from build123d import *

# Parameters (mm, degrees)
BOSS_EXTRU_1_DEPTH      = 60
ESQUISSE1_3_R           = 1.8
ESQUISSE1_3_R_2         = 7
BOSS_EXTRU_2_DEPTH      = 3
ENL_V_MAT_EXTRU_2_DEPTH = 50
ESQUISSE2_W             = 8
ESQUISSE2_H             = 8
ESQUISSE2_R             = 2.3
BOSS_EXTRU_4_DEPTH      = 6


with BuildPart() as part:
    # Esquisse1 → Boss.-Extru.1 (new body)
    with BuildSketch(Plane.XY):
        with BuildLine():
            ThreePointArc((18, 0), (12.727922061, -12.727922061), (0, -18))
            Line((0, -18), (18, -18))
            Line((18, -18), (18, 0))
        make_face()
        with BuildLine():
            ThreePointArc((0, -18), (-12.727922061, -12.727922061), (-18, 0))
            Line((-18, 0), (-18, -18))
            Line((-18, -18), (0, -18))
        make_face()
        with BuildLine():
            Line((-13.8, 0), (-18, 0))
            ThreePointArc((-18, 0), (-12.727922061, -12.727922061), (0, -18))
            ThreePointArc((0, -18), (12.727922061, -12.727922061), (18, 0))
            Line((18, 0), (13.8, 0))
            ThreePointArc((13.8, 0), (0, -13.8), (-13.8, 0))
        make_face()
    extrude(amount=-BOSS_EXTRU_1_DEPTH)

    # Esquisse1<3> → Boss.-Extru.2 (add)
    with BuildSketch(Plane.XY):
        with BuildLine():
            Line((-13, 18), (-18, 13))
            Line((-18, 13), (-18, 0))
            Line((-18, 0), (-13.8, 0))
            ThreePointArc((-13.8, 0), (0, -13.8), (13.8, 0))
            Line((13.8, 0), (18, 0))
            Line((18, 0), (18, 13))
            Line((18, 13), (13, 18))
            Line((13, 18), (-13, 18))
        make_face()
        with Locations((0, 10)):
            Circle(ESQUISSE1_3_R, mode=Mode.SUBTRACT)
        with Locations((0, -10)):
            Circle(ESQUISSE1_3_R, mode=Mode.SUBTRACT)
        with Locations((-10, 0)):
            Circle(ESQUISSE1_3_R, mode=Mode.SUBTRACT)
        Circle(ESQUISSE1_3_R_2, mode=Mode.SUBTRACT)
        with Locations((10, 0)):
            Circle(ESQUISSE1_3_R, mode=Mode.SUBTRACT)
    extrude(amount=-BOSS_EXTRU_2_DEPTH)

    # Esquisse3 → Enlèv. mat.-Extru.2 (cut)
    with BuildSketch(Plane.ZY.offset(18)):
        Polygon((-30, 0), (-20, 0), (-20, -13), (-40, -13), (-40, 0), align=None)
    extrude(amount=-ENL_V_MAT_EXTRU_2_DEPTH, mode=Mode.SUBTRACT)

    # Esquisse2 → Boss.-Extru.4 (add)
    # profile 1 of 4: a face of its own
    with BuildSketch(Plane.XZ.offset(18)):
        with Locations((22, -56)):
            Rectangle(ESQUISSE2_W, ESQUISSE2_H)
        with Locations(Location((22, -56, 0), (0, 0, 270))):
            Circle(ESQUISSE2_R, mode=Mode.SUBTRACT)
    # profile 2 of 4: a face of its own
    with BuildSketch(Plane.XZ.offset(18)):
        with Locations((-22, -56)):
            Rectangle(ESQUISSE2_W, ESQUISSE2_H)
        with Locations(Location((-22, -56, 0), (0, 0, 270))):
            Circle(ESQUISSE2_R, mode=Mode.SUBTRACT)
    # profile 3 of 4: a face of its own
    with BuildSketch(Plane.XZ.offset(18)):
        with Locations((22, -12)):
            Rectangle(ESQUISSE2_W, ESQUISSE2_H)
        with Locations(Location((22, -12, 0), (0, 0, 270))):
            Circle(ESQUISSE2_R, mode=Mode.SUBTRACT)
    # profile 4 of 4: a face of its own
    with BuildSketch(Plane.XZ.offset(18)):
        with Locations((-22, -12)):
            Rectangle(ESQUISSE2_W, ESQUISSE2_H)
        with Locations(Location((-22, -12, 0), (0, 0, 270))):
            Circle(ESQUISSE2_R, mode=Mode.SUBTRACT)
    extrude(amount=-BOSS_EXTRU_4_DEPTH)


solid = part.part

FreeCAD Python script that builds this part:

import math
import FreeCAD as App
import Part
import Sketcher
Q = App.Units.Quantity

doc = App.newDocument("Part")
body = doc.addObject("PartDesign::Body", "Body")

# Sketch on XY plane
sketch1 = body.newObject("Sketcher::SketchObject", "Sketch")
sketch1.AttachmentSupport = (doc.getObject("XY_Plane"), [""])
sketch1.MapMode = "FlatFace"
sketch1.addGeometry(Part.LineSegment(App.Vector(18, -18, 0), App.Vector(18, 0, 0)), False)
sketch1.addGeometry(Part.LineSegment(App.Vector(18, 0, 0), App.Vector(13.8, 0, 0)), False)
sketch1.addGeometry(Part.ArcOfCircle(Part.Circle(App.Vector(0, 0, 0), App.Vector(0, 0, 1), 13.8), math.radians(180), math.radians(360)), False)
sketch1.addGeometry(Part.LineSegment(App.Vector(-13.8, 0, 0), App.Vector(-18, 0, 0)), False)
sketch1.addGeometry(Part.LineSegment(App.Vector(-18, 0, 0), App.Vector(-18, -18, 0)), False)
sketch1.addGeometry(Part.LineSegment(App.Vector(-18, -18, 0), App.Vector(18, -18, 0)), False)
sketch1.addConstraint(Sketcher.Constraint("Coincident", 0, 2, 1, 1))
sketch1.addConstraint(Sketcher.Constraint("Coincident", 1, 2, 2, 2))
sketch1.addConstraint(Sketcher.Constraint("Coincident", 2, 1, 3, 1))
sketch1.addConstraint(Sketcher.Constraint("Coincident", 3, 2, 4, 1))
sketch1.addConstraint(Sketcher.Constraint("Coincident", 4, 2, 5, 1))
sketch1.addConstraint(Sketcher.Constraint("Coincident", 5, 2, 0, 1))
sketch1.addConstraint(Sketcher.Constraint("Vertical", 0))
sketch1.addConstraint(Sketcher.Constraint("Horizontal", 1))
sketch1.addConstraint(Sketcher.Constraint("Horizontal", 3))
sketch1.addConstraint(Sketcher.Constraint("Vertical", 4))
sketch1.addConstraint(Sketcher.Constraint("Horizontal", 5))
sketch1.addConstraint(Sketcher.Constraint("Coincident", 2, 3, -1, 1))
sketch1.addConstraint(Sketcher.Constraint("Symmetric", 0, 2, 3, 2, -1, 1))
sketch1.addConstraint(Sketcher.Constraint("PointOnObject", 0, 2, -1))
sketch1.addConstraint(Sketcher.Constraint("Radius", 2, Q("13.8 mm")))
sketch1.addConstraint(Sketcher.Constraint("DistanceX", 5, 1, 5, 2, Q("36 mm")))
sketch1.addConstraint(Sketcher.Constraint("DistanceY", 0, 1, 0, 2, Q("18 mm")))
pad1 = body.newObject("PartDesign::Pad", "Pad")
pad1.Profile = sketch1
pad1.Length = 60
pad1.Reversed = True

# Sketch on XY plane
sketch2 = body.newObject("Sketcher::SketchObject", "Sketch001")
sketch2.AttachmentSupport = (doc.getObject("XY_Plane"), [""])
sketch2.MapMode = "FlatFace"
sketch2.addGeometry(Part.LineSegment(App.Vector(-13, 18, 0), App.Vector(-18, 13, 0)), False)
sketch2.addGeometry(Part.LineSegment(App.Vector(-18, 13, 0), App.Vector(-18, 0, 0)), False)
sketch2.addGeometry(Part.LineSegment(App.Vector(-18, 0, 0), App.Vector(-13.8, 0, 0)), False)
sketch2.addGeometry(Part.ArcOfCircle(Part.Circle(App.Vector(0, 0, 0), App.Vector(0, 0, 1), 13.8), math.radians(180), math.radians(360)), False)
sketch2.addGeometry(Part.LineSegment(App.Vector(13.8, 0, 0), App.Vector(18, 0, 0)), False)
sketch2.addGeometry(Part.LineSegment(App.Vector(18, 0, 0), App.Vector(18, 13, 0)), False)
sketch2.addGeometry(Part.LineSegment(App.Vector(18, 13, 0), App.Vector(13, 18, 0)), False)
sketch2.addGeometry(Part.LineSegment(App.Vector(13, 18, 0), App.Vector(-13, 18, 0)), False)
sketch2.addGeometry(Part.Circle(App.Vector(0, -10, 0), App.Vector(0, 0, 1), 1.8), False)
sketch2.addGeometry(Part.Circle(App.Vector(-10, 0, 0), App.Vector(0, 0, 1), 1.8), False)
sketch2.addGeometry(Part.Circle(App.Vector(0, 0, 0), App.Vector(0, 0, 1), 7), False)
sketch2.addGeometry(Part.Circle(App.Vector(10, 0, 0), App.Vector(0, 0, 1), 1.8), False)
sketch2.addGeometry(Part.Circle(App.Vector(0, 10, 0), App.Vector(0, 0, 1), 1.8), False)
sketch2.addConstraint(Sketcher.Constraint("Coincident", 0, 2, 1, 1))
sketch2.addConstraint(Sketcher.Constraint("Coincident", 1, 2, 2, 1))
sketch2.addConstraint(Sketcher.Constraint("Coincident", 2, 2, 3, 1))
sketch2.addConstraint(Sketcher.Constraint("Coincident", 3, 2, 4, 1))
sketch2.addConstraint(Sketcher.Constraint("Coincident", 4, 2, 5, 1))
sketch2.addConstraint(Sketcher.Constraint("Coincident", 5, 2, 6, 1))
sketch2.addConstraint(Sketcher.Constraint("Coincident", 6, 2, 7, 1))
sketch2.addConstraint(Sketcher.Constraint("Coincident", 7, 2, 0, 1))
sketch2.addConstraint(Sketcher.Constraint("Vertical", 1))
sketch2.addConstraint(Sketcher.Constraint("Horizontal", 2))
sketch2.addConstraint(Sketcher.Constraint("Horizontal", 4))
sketch2.addConstraint(Sketcher.Constraint("Vertical", 5))
sketch2.addConstraint(Sketcher.Constraint("Horizontal", 7))
sketch2.addConstraint(Sketcher.Constraint("Coincident", 3, 3, -1, 1))
sketch2.addConstraint(Sketcher.Constraint("Coincident", 10, 3, -1, 1))
sketch2.addConstraint(Sketcher.Constraint("Equal", 8, 9))
sketch2.addConstraint(Sketcher.Constraint("Equal", 9, 11))
sketch2.addConstraint(Sketcher.Constraint("Equal", 11, 12))
sketch2.addConstraint(Sketcher.Constraint("Symmetric", 9, 3, 11, 3, -1, 1))
sketch2.addConstraint(Sketcher.Constraint("Symmetric", 8, 3, 12, 3, -1, 1))
sketch2.addConstraint(Sketcher.Constraint("Symmetric", 1, 2, 4, 2, -1, 1))
sketch2.addConstraint(Sketcher.Constraint("PointOnObject", 8, 3, -2))
sketch2.addConstraint(Sketcher.Constraint("PointOnObject", 9, 3, -1))
sketch2.addConstraint(Sketcher.Constraint("PointOnObject", 1, 2, -1))
sketch2.addConstraint(Sketcher.Constraint("Perpendicular", 0, 6))
sketch2.addConstraint(Sketcher.Constraint("Horizontal", 0, 2, 5, 2))
sketch2.addConstraint(Sketcher.Constraint("Equal", 0, 6))
sketch2.addConstraint(Sketcher.Constraint("Diameter", 10, Q("14 mm")))
sketch2.addConstraint(Sketcher.Constraint("Diameter", 8, Q("3.6 mm")))
sketch2.addConstraint(Sketcher.Constraint("Radius", 3, Q("13.8 mm")))
sketch2.addConstraint(Sketcher.Constraint("DistanceX", 7, 2, 7, 1, Q("26 mm")))
sketch2.addConstraint(Sketcher.Constraint("DistanceY", 1, 2, 1, 1, Q("13 mm")))
sketch2.addConstraint(Sketcher.Constraint("DistanceX", 2, 1, 2, 2, Q("4.2 mm")))
sketch2.addConstraint(Sketcher.Constraint("DistanceY", 8, 3, -1, 1, Q("10 mm")))
sketch2.addConstraint(Sketcher.Constraint("DistanceX", 9, 3, -1, 1, Q("10 mm")))
pad2 = body.newObject("PartDesign::Pad", "Pad001")
pad2.Profile = sketch2
pad2.Length = 3
pad2.Reversed = True

# Sketch on YZ plane
sketch3 = body.newObject("Sketcher::SketchObject", "Sketch002")
sketch3.AttachmentSupport = (doc.getObject("YZ_Plane"), [""])
sketch3.MapMode = "FlatFace"
sketch3.AttachmentOffset = App.Placement(App.Vector(0, 0, -18), App.Rotation())
sketch3.addGeometry(Part.LineSegment(App.Vector(0, -20, 0), App.Vector(0, -40, 0)), False)
sketch3.addGeometry(Part.LineSegment(App.Vector(0, -40, 0), App.Vector(-13, -40, 0)), False)
sketch3.addGeometry(Part.LineSegment(App.Vector(-13, -40, 0), App.Vector(-13, -20, 0)), False)
sketch3.addGeometry(Part.LineSegment(App.Vector(-13, -20, 0), App.Vector(0, -20, 0)), False)
sketch3.addConstraint(Sketcher.Constraint("Coincident", 0, 2, 1, 1))
sketch3.addConstraint(Sketcher.Constraint("Coincident", 1, 2, 2, 1))
sketch3.addConstraint(Sketcher.Constraint("Coincident", 2, 2, 3, 1))
sketch3.addConstraint(Sketcher.Constraint("Coincident", 3, 2, 0, 1))
sketch3.addConstraint(Sketcher.Constraint("Vertical", 0))
sketch3.addConstraint(Sketcher.Constraint("Horizontal", 1))
sketch3.addConstraint(Sketcher.Constraint("Vertical", 2))
sketch3.addConstraint(Sketcher.Constraint("Horizontal", 3))
sketch3.addConstraint(Sketcher.Constraint("PointOnObject", 0, 2, -2))
sketch3.addConstraint(Sketcher.Constraint("DistanceX", 1, 2, 1, 1, Q("13 mm")))
sketch3.addConstraint(Sketcher.Constraint("DistanceY", 0, 2, 0, 1, Q("20 mm")))
sketch3.addConstraint(Sketcher.Constraint("DistanceY", 0, 2, -1, 1, Q("40 mm")))
pocket1 = body.newObject("PartDesign::Pocket", "Pocket")
pocket1.Profile = sketch3
pocket1.Length = 50
pocket1.Reversed = True

# Sketch on XZ plane
sketch4 = body.newObject("Sketcher::SketchObject", "Sketch003")
sketch4.AttachmentSupport = (doc.getObject("XZ_Plane"), [""])
sketch4.MapMode = "FlatFace"
sketch4.AttachmentOffset = App.Placement(App.Vector(0, 0, 18), App.Rotation())
sketch4.addGeometry(Part.LineSegment(App.Vector(18, -52, 0), App.Vector(18, -60, 0)), False)
sketch4.addGeometry(Part.LineSegment(App.Vector(18, -60, 0), App.Vector(26, -60, 0)), False)
sketch4.addGeometry(Part.LineSegment(App.Vector(26, -60, 0), App.Vector(26, -52, 0)), False)
sketch4.addGeometry(Part.LineSegment(App.Vector(26, -52, 0), App.Vector(18, -52, 0)), False)
sketch4.addGeometry(Part.Circle(App.Vector(22, -56, 0), App.Vector(0, 0, 1), 2.3), False)
sketch4.addGeometry(Part.LineSegment(App.Vector(-26, -52, 0), App.Vector(-26, -60, 0)), False)
sketch4.addGeometry(Part.LineSegment(App.Vector(-26, -60, 0), App.Vector(-18, -60, 0)), False)
sketch4.addGeometry(Part.LineSegment(App.Vector(-18, -60, 0), App.Vector(-18, -52, 0)), False)
sketch4.addGeometry(Part.LineSegment(App.Vector(-18, -52, 0), App.Vector(-26, -52, 0)), False)
sketch4.addGeometry(Part.Circle(App.Vector(-22, -56, 0), App.Vector(0, 0, 1), 2.3), False)
sketch4.addGeometry(Part.LineSegment(App.Vector(18, -8, 0), App.Vector(18, -16, 0)), False)
sketch4.addGeometry(Part.LineSegment(App.Vector(18, -16, 0), App.Vector(26, -16, 0)), False)
sketch4.addGeometry(Part.LineSegment(App.Vector(26, -16, 0), App.Vector(26, -8, 0)), False)
sketch4.addGeometry(Part.LineSegment(App.Vector(26, -8, 0), App.Vector(18, -8, 0)), False)
sketch4.addGeometry(Part.Circle(App.Vector(22, -12, 0), App.Vector(0, 0, 1), 2.3), False)
sketch4.addGeometry(Part.LineSegment(App.Vector(-26, -8, 0), App.Vector(-26, -16, 0)), False)
sketch4.addGeometry(Part.LineSegment(App.Vector(-26, -16, 0), App.Vector(-18, -16, 0)), False)
sketch4.addGeometry(Part.LineSegment(App.Vector(-18, -16, 0), App.Vector(-18, -8, 0)), False)
sketch4.addGeometry(Part.LineSegment(App.Vector(-18, -8, 0), App.Vector(-26, -8, 0)), False)
sketch4.addGeometry(Part.Circle(App.Vector(-22, -12, 0), App.Vector(0, 0, 1), 2.3), False)
sketch4.addConstraint(Sketcher.Constraint("Coincident", 0, 2, 1, 1))
sketch4.addConstraint(Sketcher.Constraint("Coincident", 1, 2, 2, 1))
sketch4.addConstraint(Sketcher.Constraint("Coincident", 2, 2, 3, 1))
sketch4.addConstraint(Sketcher.Constraint("Coincident", 3, 2, 0, 1))
sketch4.addConstraint(Sketcher.Constraint("Coincident", 5, 2, 6, 1))
sketch4.addConstraint(Sketcher.Constraint("Coincident", 6, 2, 7, 1))
sketch4.addConstraint(Sketcher.Constraint("Coincident", 7, 2, 8, 1))
sketch4.addConstraint(Sketcher.Constraint("Coincident", 8, 2, 5, 1))
sketch4.addConstraint(Sketcher.Constraint("Coincident", 10, 2, 11, 1))
sketch4.addConstraint(Sketcher.Constraint("Coincident", 11, 2, 12, 1))
sketch4.addConstraint(Sketcher.Constraint("Coincident", 12, 2, 13, 1))
sketch4.addConstraint(Sketcher.Constraint("Coincident", 13, 2, 10, 1))
sketch4.addConstraint(Sketcher.Constraint("Coincident", 15, 2, 16, 1))
sketch4.addConstraint(Sketcher.Constraint("Coincident", 16, 2, 17, 1))
sketch4.addConstraint(Sketcher.Constraint("Coincident", 17, 2, 18, 1))
sketch4.addConstraint(Sketcher.Constraint("Coincident", 18, 2, 15, 1))
sketch4.addConstraint(Sketcher.Constraint("Vertical", 0))
sketch4.addConstraint(Sketcher.Constraint("Horizontal", 1))
sketch4.addConstraint(Sketcher.Constraint("Vertical", 2))
sketch4.addConstraint(Sketcher.Constraint("Horizontal", 3))
sketch4.addConstraint(Sketcher.Constraint("Vertical", 5))
sketch4.addConstraint(Sketcher.Constraint("Horizontal", 6))
sketch4.addConstraint(Sketcher.Constraint("Vertical", 7))
sketch4.addConstraint(Sketcher.Constraint("Horizontal", 8))
sketch4.addConstraint(Sketcher.Constraint("Vertical", 10))
sketch4.addConstraint(Sketcher.Constraint("Horizontal", 11))
sketch4.addConstraint(Sketcher.Constraint("Vertical", 12))
sketch4.addConstraint(Sketcher.Constraint("Horizontal", 13))
sketch4.addConstraint(Sketcher.Constraint("Vertical", 15))
sketch4.addConstraint(Sketcher.Constraint("Horizontal", 16))
sketch4.addConstraint(Sketcher.Constraint("Vertical", 17))
sketch4.addConstraint(Sketcher.Constraint("Horizontal", 18))
sketch4.addConstraint(Sketcher.Constraint("Equal", 4, 9))
sketch4.addConstraint(Sketcher.Constraint("Equal", 9, 14))
sketch4.addConstraint(Sketcher.Constraint("Equal", 14, 19))
sketch4.addConstraint(Sketcher.Constraint("Symmetric", 4, 3, 9, 3, -2))
sketch4.addConstraint(Sketcher.Constraint("Symmetric", 14, 3, 19, 3, -2))
sketch4.addConstraint(Sketcher.Constraint("Symmetric", 1, 2, 5, 2, -2))
sketch4.addConstraint(Sketcher.Constraint("Symmetric", 3, 2, 7, 2, -2))
sketch4.addConstraint(Sketcher.Constraint("Symmetric", 11, 2, 15, 2, -2))
sketch4.addConstraint(Sketcher.Constraint("Symmetric", 13, 2, 17, 2, -2))
sketch4.addConstraint(Sketcher.Constraint("Vertical", 4, 3, 14, 3))
sketch4.addConstraint(Sketcher.Constraint("Vertical", 3, 2, 10, 2))
sketch4.addConstraint(Sketcher.Constraint("Vertical", 2, 2, 11, 2))
sketch4.addConstraint(Sketcher.Constraint("Equal", 18, 0))
sketch4.addConstraint(Sketcher.Constraint("Equal", 7, 10))
sketch4.addConstraint(Sketcher.Constraint("Diameter", 4, Q("4.6 mm")))
sketch4.addConstraint(Sketcher.Constraint("DistanceX", 1, 1, 1, 2, Q("8 mm")))
sketch4.addConstraint(Sketcher.Constraint("DistanceX", -1, 1, 4, 3, Q("22 mm")))
sketch4.addConstraint(Sketcher.Constraint("DistanceY", 4, 3, -1, 1, Q("56 mm")))
sketch4.addConstraint(Sketcher.Constraint("DistanceY", 14, 3, -1, 1, Q("12 mm")))
sketch4.addConstraint(Sketcher.Constraint("DistanceX", -1, 1, 0, 2, Q("18 mm")))
sketch4.addConstraint(Sketcher.Constraint("DistanceY", 0, 2, -1, 1, Q("60 mm")))
sketch4.addConstraint(Sketcher.Constraint("DistanceY", 10, 2, -1, 1, Q("16 mm")))
pad3 = body.newObject("PartDesign::Pad", "Pad002")
pad3.Profile = sketch4
pad3.Length = 6
pad3.Reversed = True

doc.recompute()
